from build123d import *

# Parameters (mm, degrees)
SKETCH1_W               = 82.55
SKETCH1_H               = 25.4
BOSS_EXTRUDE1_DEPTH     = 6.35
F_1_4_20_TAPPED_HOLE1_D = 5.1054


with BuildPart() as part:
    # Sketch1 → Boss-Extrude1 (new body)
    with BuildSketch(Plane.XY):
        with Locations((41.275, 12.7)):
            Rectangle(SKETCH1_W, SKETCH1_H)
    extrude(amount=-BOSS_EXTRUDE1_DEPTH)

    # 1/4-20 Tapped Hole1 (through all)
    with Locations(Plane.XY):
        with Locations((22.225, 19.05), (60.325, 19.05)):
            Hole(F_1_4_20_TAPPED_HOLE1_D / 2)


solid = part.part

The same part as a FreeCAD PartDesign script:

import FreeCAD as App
import Part
import Sketcher
Q = App.Units.Quantity


def add_polygon(sketch, points):
    """Adds a closed chain of lines whose ends are joined by coincident constraints."""
    first, n = sketch.GeometryCount, len(points)
    for a, b in zip(points, points[1:] + points[:1]):
        sketch.addGeometry(Part.LineSegment(App.Vector(*a, 0), App.Vector(*b, 0)), False)
    for i in range(n):
        sketch.addConstraint(Sketcher.Constraint("Coincident", first + i, 2, first + (i + 1) % n, 1))

doc = App.newDocument("Part")
body = doc.addObject("PartDesign::Body", "Body")

sketch1 = body.newObject("Sketcher::SketchObject", "Sketch")
sketch1.AttachmentSupport = (doc.getObject("XY_Plane"), [""])
sketch1.MapMode = "FlatFace"
add_polygon(sketch1, [(0, 25.4), (0, 0), (82.55, 0), (82.55, 25.4)])
sketch1.addConstraint(Sketcher.Constraint("Vertical", 0))
sketch1.addConstraint(Sketcher.Constraint("Horizontal", 1))
sketch1.addConstraint(Sketcher.Constraint("Vertical", 2))
sketch1.addConstraint(Sketcher.Constraint("Horizontal", 3))
sketch1.addConstraint(Sketcher.Constraint("Coincident", 0, 2, -1, 1))
sketch1.addConstraint(Sketcher.Constraint("DistanceY", 0, 2, 0, 1, Q("1 in")))
sketch1.addConstraint(Sketcher.Constraint("DistanceX", 1, 1, 1, 2, Q("3.25 in")))
pad1 = body.newObject("PartDesign::Pad", "Pad")
pad1.Profile = sketch1
pad1.Length = Q("0.25 in")
pad1.Reversed = True

sketch2 = body.newObject("Sketcher::SketchObject", "Sketch001")
sketch2.AttachmentSupport = (doc.getObject("XY_Plane"), [""])
sketch2.MapMode = "FlatFace"
sketch2.addGeometry(Part.Circle(App.Vector(22.225, 19.05, 0), App.Vector(0, 0, 1), 2.5527), False)
sketch2.addGeometry(Part.Circle(App.Vector(60.325, 19.05, 0), App.Vector(0, 0, 1), 2.5527), False)
sketch2.addConstraint(Sketcher.Constraint("Equal", 0, 1))
sketch2.addConstraint(Sketcher.Constraint("Horizontal", 0, 3, 1, 3))
sketch2.addConstraint(Sketcher.Constraint("Diameter", 0, Q("0.201 in")))
sketch2.addConstraint(Sketcher.Constraint("DistanceX", 0, 3, 1, 3, Q("1.5 in")))
sketch2.addConstraint(Sketcher.Constraint("DistanceY", -1, 1, 0, 3, Q("0.75 in")))
sketch2.addConstraint(Sketcher.Constraint("DistanceX", -1, 1, 0, 3, Q("0.875 in")))
doc.recompute()
hole = body.newObject("PartDesign::Hole", "Hole")
hole.Profile = sketch2
hole.ThreadType = "None"
hole.Diameter = Q("0.201 in")
hole.DepthType = "ThroughAll"

doc.recompute()
